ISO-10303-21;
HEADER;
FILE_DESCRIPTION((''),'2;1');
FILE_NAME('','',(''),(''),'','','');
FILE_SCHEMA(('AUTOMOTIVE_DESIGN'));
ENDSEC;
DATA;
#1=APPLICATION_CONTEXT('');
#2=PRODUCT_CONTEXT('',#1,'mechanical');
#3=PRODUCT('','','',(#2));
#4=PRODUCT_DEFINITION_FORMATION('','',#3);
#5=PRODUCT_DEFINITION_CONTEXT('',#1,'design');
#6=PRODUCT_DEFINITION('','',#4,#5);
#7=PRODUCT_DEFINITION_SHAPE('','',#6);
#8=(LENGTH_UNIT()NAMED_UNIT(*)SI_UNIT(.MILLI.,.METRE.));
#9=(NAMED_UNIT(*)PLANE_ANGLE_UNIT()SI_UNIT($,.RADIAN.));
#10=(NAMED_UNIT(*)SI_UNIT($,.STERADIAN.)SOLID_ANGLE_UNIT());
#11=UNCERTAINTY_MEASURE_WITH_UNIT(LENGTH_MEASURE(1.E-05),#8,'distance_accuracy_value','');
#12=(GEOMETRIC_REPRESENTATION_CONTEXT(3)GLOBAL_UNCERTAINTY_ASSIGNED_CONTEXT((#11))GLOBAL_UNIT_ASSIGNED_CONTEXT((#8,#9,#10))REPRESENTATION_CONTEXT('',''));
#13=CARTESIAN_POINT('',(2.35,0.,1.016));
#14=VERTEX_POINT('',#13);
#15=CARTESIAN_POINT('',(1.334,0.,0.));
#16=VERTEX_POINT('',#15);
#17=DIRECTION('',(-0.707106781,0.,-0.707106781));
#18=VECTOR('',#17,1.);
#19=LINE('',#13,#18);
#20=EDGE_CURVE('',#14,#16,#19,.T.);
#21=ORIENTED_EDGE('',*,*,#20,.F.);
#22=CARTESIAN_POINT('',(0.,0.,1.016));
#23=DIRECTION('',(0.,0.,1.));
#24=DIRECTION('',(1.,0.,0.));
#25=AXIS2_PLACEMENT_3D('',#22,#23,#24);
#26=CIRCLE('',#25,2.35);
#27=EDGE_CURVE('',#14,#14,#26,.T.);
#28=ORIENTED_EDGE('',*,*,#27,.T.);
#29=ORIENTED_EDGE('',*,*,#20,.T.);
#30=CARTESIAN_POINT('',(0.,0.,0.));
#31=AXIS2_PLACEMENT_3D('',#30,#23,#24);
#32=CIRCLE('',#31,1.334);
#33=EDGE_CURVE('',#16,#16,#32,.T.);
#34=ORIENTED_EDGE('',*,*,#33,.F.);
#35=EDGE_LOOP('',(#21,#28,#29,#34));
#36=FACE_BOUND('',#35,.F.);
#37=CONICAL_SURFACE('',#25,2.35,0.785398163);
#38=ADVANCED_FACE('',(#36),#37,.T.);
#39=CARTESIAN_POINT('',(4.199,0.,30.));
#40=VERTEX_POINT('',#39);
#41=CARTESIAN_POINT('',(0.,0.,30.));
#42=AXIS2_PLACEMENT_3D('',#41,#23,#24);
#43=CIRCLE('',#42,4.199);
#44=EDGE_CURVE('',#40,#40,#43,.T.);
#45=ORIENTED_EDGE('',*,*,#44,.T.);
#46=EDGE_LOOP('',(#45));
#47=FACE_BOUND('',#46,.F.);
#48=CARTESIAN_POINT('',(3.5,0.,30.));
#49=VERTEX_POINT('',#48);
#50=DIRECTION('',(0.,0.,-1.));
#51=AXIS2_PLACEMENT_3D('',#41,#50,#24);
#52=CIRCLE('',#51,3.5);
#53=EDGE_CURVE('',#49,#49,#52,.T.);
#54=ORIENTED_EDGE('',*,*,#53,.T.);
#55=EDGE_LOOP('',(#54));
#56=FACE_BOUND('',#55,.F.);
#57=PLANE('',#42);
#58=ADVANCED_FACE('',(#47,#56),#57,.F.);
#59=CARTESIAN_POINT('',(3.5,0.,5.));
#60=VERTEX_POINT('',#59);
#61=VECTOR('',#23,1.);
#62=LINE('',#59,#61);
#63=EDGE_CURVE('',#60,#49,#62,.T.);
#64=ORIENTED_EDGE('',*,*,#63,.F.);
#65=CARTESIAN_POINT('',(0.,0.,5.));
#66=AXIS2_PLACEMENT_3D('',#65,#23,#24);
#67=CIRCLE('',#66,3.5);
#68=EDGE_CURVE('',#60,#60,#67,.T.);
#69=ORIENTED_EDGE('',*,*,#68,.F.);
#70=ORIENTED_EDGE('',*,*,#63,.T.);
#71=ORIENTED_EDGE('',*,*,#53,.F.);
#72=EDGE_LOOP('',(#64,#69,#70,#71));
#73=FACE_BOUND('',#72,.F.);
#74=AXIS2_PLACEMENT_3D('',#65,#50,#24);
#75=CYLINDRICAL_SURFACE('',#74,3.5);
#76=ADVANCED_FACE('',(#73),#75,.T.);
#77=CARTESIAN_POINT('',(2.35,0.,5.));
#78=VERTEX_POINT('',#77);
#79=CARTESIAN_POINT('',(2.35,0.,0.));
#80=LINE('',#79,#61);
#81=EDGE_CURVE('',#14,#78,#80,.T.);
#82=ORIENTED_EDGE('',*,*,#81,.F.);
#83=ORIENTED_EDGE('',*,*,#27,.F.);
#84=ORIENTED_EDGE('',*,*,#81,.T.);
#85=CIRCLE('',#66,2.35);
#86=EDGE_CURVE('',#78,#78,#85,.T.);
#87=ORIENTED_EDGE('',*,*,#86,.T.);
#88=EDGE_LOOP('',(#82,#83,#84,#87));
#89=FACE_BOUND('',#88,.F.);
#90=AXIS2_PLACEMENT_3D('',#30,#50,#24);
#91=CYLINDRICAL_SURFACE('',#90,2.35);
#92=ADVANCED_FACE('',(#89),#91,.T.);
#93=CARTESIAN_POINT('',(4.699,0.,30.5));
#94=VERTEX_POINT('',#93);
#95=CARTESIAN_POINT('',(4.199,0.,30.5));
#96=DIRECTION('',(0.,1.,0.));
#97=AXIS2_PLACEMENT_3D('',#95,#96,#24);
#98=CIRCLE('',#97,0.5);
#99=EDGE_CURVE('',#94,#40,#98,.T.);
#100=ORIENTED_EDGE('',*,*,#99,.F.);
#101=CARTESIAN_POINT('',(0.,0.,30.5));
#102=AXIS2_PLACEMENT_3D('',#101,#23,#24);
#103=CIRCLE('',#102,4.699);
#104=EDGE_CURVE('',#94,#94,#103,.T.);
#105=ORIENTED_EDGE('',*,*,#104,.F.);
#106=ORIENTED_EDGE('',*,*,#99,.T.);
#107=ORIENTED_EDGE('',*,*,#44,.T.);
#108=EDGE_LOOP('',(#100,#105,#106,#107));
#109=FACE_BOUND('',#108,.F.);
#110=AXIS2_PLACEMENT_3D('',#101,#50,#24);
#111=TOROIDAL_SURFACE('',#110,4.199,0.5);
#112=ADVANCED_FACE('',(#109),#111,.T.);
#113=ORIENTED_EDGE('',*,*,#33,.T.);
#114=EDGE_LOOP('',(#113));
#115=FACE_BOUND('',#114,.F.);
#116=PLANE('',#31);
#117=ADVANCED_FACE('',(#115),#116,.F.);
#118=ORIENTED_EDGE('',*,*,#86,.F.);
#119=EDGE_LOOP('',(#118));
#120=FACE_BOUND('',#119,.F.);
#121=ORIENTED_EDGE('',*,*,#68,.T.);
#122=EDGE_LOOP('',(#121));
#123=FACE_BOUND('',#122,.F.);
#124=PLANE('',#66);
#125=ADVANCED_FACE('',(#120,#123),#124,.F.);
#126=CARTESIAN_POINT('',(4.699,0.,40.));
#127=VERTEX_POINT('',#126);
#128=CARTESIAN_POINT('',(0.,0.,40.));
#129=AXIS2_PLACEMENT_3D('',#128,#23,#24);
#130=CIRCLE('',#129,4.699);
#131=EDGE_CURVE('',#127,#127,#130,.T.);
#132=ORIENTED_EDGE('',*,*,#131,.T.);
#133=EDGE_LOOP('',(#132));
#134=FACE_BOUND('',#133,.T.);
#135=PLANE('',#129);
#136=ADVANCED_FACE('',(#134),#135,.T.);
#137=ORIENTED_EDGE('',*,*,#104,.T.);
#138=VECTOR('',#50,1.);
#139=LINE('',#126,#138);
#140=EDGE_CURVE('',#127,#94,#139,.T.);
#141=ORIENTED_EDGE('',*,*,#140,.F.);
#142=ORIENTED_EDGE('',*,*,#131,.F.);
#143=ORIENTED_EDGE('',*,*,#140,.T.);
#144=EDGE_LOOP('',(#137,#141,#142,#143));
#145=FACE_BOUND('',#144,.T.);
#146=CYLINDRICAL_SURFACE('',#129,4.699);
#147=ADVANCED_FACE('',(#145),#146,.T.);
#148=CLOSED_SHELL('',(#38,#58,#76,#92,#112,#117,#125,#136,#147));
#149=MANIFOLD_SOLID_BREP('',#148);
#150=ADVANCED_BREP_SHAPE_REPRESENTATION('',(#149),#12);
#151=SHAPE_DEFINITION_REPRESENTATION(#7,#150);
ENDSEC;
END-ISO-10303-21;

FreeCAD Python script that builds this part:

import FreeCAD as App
import Part
import Sketcher

V = App.Vector
Q = App.Units.Quantity


def edges_at(feature, points):
    """Names of the edges that pass closest to the given points."""
    edges = feature.Shape.Edges
    near = lambda p: min(range(len(edges)), key=lambda i: edges[i].distToShape(Part.Vertex(*p))[0])
    return sorted({f"Edge{near(p) + 1}" for p in points})

doc = App.newDocument("Part")
body = doc.addObject("PartDesign::Body", "Body")

sketch1 = doc.addObject("Sketcher::SketchObject", "Sketch")
body.addObject(sketch1)
sketch1.AttachmentSupport = (doc.XY_Plane, [""])
sketch1.MapMode = "FlatFace"
sketch1.addGeometry(Part.Circle(V(0, 0, 0), V(0, 0, 1), 2.4), False)
sketch1.addConstraint([
    Sketcher.Constraint("Coincident", 0, 3, -1, 1),
    Sketcher.Constraint("Diameter", 0, Q("4.7 mm")),
])
pad1 = doc.addObject("PartDesign::Pad", "Pad")
body.addObject(pad1)
pad1.Profile = sketch1
pad1.Length = 5

sketch2 = doc.addObject("Sketcher::SketchObject", "Sketch001")
body.addObject(sketch2)
sketch2.AttachmentSupport = (doc.XY_Plane, [""])
sketch2.MapMode = "FlatFace"
sketch2.AttachmentOffset = App.Placement(V(0, 0, 5), App.Rotation())
sketch2.addGeometry(Part.Circle(V(0, 0, 0), V(0, 0, 1), 3.5), False)
sketch2.addConstraint([
    Sketcher.Constraint("Coincident", 0, 3, -1, 1),
    Sketcher.Constraint("Diameter", 0, Q("7 mm")),
])
pad2 = doc.addObject("PartDesign::Pad", "Pad001")
body.addObject(pad2)
pad2.Profile = sketch2
pad2.Length = 35
doc.recompute()

chamfer = doc.addObject("PartDesign::Chamfer", "Chamfer")
body.addObject(chamfer)
chamfer.Base = (pad2, edges_at(pad2, [(-2.35, 0, 0)]))
chamfer.Size = 1.016

sketch3 = doc.addObject("Sketcher::SketchObject", "Sketch002")
body.addObject(sketch3)
sketch3.AttachmentSupport = (doc.XY_Plane, [""])
sketch3.MapMode = "FlatFace"
sketch3.AttachmentOffset = App.Placement(V(0, 0, 40), App.Rotation())
sketch3.addGeometry(Part.Circle(V(0, 0, 0), V(0, 0, 1), 4.7), False)
sketch3.addConstraint([
    Sketcher.Constraint("Coincident", 0, 3, -1, 1),
    Sketcher.Constraint("Diameter", 0, Q("9.398 mm")),
])
pad3 = doc.addObject("PartDesign::Pad", "Pad002")
body.addObject(pad3)
pad3.Profile = sketch3
pad3.Length = 10
pad3.Reversed = True
doc.recompute()

fillet = doc.addObject("PartDesign::Fillet", "Fillet")
body.addObject(fillet)
fillet.Base = (pad3, edges_at(pad3, [(-4.699, 0, 30)]))
fillet.Radius = 0.5

doc.recompute()
